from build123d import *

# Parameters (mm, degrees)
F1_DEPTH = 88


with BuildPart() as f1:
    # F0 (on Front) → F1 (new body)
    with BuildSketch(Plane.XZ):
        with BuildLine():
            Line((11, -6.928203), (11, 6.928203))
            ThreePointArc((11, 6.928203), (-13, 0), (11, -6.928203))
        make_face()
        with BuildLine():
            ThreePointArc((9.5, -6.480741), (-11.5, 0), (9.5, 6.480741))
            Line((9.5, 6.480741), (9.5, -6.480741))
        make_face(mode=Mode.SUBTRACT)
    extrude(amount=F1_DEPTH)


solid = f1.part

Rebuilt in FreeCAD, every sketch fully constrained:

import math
import FreeCAD as App
import Part
import Sketcher
from FreeCAD import Vector

doc = App.newDocument("Part")
body = doc.addObject("PartDesign::Body", "Body")

# Sketch on XZ plane
sketch1 = body.newObject("Sketcher::SketchObject", "Sketch")
sketch1.AttachmentSupport = (doc.getObject("XZ_Plane"), [""])
sketch1.MapMode = "FlatFace"
sketch1.addGeometry([
    Part.LineSegment(Vector(11, -7, 0), Vector(11, 7, 0)),
    Part.ArcOfCircle(Part.Circle(Vector(0, 0, 0), Vector(0, 0, 1), 13), math.radians(32), math.radians(328)),
    Part.LineSegment(Vector(10, 6, 0), Vector(10, -6, 0)),
    Part.ArcOfCircle(Part.Circle(Vector(0, 0, 0), Vector(0, 0, 1), 12), math.radians(34), math.radians(326)),
], False)
sketch1.addConstraint([
    Sketcher.Constraint("Coincident", 0, 1, 1, 2),
    Sketcher.Constraint("Coincident", 1, 1, 0, 2),
    Sketcher.Constraint("Coincident", 2, 1, 3, 1),
    Sketcher.Constraint("Coincident", 3, 2, 2, 2),
    Sketcher.Constraint("Vertical", 0),
    Sketcher.Constraint("Vertical", 2),
    Sketcher.Constraint("Coincident", 1, 3, -1, 1),
    Sketcher.Constraint("Coincident", 3, 3, -1, 1),
    Sketcher.Constraint("Radius", 1, 13.0),
    Sketcher.Constraint("Radius", 3, 11.5),
    Sketcher.Constraint("DistanceX", -1, 1, 0, 1, 11.0),
    Sketcher.Constraint("DistanceX", -1, 1, 2, 1, 9.5),
])
pad1 = body.newObject("PartDesign::Pad", "Pad")
pad1.Profile = sketch1
pad1.Length = 88

doc.recompute()
